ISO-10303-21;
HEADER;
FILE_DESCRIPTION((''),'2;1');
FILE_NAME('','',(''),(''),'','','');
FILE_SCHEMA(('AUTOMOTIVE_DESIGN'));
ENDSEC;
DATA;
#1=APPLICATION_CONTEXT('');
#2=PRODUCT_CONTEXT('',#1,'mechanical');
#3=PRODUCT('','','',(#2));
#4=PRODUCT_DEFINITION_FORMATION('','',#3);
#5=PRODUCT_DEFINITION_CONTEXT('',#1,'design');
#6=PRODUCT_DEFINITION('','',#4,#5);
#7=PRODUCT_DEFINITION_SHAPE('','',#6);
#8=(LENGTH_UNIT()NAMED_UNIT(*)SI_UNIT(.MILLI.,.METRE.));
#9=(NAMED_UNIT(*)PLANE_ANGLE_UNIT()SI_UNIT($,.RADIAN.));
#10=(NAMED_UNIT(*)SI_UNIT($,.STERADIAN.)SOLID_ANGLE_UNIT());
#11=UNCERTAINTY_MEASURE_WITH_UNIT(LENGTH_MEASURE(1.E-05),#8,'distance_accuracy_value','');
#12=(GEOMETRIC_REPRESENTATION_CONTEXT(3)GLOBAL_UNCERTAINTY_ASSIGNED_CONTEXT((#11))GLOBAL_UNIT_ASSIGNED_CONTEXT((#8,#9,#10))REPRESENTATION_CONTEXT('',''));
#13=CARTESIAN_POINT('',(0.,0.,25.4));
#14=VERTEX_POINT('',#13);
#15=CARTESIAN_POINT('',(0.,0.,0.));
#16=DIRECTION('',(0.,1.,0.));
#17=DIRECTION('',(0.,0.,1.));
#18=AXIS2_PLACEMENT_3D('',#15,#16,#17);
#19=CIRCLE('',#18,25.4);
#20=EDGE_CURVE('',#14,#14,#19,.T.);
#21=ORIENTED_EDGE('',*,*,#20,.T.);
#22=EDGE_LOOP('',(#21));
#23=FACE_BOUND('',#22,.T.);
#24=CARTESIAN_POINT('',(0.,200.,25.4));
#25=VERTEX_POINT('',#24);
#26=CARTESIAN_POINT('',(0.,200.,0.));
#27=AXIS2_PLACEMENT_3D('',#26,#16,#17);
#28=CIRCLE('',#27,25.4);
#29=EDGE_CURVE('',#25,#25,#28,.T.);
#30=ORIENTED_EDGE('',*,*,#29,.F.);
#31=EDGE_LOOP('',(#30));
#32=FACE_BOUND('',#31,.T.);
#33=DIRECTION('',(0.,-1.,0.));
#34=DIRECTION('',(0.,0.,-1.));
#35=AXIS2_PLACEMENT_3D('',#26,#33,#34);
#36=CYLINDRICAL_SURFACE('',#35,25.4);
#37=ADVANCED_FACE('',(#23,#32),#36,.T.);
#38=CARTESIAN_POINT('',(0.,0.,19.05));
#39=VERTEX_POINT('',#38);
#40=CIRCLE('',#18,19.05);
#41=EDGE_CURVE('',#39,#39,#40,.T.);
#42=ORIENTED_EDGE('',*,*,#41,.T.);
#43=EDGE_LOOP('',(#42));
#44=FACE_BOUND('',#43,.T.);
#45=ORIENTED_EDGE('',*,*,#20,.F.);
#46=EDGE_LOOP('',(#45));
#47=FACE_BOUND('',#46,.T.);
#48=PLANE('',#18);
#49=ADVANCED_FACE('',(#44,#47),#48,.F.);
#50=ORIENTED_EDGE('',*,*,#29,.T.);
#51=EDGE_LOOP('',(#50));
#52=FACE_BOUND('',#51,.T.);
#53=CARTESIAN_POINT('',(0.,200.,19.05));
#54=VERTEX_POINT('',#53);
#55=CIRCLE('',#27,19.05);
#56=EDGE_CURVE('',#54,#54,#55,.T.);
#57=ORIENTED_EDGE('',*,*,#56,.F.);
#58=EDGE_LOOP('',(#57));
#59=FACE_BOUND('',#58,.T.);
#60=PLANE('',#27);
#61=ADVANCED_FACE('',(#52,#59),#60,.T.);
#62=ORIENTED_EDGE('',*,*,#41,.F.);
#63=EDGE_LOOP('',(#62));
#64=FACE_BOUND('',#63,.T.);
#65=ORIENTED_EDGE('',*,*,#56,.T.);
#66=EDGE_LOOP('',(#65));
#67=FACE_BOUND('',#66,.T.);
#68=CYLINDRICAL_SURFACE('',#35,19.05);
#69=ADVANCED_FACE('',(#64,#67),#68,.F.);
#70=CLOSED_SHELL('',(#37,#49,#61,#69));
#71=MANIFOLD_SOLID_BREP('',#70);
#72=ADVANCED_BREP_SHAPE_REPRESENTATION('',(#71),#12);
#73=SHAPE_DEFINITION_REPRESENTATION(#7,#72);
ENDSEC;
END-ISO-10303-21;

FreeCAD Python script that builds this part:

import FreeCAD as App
import Part
import Sketcher

V = App.Vector
Q = App.Units.Quantity

doc = App.newDocument("Part")
body = doc.addObject("PartDesign::Body", "Body")

sketch1 = body.newObject("Sketcher::SketchObject", "Sketch")
sketch1.AttachmentSupport = (doc.getObject("XZ_Plane"), [""])
sketch1.MapMode = "FlatFace"
sketch1.addGeometry([
    Part.Circle(V(0, 0, 0), V(0, 0, 1), 25.4),
    Part.Circle(V(0, 0, 0), V(0, 0, 1), 19.05),
], False)
sketch1.addConstraint([
    Sketcher.Constraint("Coincident", 0, 3, -1, 1),
    Sketcher.Constraint("Coincident", 1, 3, -1, 1),
    Sketcher.Constraint("Diameter", 0, Q("2 in")),
    Sketcher.Constraint("Diameter", 1, Q("1.5 in")),
])
pad1 = body.newObject("PartDesign::Pad", "Pad")
pad1.Profile = sketch1
pad1.Length = 200
pad1.Reversed = True

doc.recompute()
